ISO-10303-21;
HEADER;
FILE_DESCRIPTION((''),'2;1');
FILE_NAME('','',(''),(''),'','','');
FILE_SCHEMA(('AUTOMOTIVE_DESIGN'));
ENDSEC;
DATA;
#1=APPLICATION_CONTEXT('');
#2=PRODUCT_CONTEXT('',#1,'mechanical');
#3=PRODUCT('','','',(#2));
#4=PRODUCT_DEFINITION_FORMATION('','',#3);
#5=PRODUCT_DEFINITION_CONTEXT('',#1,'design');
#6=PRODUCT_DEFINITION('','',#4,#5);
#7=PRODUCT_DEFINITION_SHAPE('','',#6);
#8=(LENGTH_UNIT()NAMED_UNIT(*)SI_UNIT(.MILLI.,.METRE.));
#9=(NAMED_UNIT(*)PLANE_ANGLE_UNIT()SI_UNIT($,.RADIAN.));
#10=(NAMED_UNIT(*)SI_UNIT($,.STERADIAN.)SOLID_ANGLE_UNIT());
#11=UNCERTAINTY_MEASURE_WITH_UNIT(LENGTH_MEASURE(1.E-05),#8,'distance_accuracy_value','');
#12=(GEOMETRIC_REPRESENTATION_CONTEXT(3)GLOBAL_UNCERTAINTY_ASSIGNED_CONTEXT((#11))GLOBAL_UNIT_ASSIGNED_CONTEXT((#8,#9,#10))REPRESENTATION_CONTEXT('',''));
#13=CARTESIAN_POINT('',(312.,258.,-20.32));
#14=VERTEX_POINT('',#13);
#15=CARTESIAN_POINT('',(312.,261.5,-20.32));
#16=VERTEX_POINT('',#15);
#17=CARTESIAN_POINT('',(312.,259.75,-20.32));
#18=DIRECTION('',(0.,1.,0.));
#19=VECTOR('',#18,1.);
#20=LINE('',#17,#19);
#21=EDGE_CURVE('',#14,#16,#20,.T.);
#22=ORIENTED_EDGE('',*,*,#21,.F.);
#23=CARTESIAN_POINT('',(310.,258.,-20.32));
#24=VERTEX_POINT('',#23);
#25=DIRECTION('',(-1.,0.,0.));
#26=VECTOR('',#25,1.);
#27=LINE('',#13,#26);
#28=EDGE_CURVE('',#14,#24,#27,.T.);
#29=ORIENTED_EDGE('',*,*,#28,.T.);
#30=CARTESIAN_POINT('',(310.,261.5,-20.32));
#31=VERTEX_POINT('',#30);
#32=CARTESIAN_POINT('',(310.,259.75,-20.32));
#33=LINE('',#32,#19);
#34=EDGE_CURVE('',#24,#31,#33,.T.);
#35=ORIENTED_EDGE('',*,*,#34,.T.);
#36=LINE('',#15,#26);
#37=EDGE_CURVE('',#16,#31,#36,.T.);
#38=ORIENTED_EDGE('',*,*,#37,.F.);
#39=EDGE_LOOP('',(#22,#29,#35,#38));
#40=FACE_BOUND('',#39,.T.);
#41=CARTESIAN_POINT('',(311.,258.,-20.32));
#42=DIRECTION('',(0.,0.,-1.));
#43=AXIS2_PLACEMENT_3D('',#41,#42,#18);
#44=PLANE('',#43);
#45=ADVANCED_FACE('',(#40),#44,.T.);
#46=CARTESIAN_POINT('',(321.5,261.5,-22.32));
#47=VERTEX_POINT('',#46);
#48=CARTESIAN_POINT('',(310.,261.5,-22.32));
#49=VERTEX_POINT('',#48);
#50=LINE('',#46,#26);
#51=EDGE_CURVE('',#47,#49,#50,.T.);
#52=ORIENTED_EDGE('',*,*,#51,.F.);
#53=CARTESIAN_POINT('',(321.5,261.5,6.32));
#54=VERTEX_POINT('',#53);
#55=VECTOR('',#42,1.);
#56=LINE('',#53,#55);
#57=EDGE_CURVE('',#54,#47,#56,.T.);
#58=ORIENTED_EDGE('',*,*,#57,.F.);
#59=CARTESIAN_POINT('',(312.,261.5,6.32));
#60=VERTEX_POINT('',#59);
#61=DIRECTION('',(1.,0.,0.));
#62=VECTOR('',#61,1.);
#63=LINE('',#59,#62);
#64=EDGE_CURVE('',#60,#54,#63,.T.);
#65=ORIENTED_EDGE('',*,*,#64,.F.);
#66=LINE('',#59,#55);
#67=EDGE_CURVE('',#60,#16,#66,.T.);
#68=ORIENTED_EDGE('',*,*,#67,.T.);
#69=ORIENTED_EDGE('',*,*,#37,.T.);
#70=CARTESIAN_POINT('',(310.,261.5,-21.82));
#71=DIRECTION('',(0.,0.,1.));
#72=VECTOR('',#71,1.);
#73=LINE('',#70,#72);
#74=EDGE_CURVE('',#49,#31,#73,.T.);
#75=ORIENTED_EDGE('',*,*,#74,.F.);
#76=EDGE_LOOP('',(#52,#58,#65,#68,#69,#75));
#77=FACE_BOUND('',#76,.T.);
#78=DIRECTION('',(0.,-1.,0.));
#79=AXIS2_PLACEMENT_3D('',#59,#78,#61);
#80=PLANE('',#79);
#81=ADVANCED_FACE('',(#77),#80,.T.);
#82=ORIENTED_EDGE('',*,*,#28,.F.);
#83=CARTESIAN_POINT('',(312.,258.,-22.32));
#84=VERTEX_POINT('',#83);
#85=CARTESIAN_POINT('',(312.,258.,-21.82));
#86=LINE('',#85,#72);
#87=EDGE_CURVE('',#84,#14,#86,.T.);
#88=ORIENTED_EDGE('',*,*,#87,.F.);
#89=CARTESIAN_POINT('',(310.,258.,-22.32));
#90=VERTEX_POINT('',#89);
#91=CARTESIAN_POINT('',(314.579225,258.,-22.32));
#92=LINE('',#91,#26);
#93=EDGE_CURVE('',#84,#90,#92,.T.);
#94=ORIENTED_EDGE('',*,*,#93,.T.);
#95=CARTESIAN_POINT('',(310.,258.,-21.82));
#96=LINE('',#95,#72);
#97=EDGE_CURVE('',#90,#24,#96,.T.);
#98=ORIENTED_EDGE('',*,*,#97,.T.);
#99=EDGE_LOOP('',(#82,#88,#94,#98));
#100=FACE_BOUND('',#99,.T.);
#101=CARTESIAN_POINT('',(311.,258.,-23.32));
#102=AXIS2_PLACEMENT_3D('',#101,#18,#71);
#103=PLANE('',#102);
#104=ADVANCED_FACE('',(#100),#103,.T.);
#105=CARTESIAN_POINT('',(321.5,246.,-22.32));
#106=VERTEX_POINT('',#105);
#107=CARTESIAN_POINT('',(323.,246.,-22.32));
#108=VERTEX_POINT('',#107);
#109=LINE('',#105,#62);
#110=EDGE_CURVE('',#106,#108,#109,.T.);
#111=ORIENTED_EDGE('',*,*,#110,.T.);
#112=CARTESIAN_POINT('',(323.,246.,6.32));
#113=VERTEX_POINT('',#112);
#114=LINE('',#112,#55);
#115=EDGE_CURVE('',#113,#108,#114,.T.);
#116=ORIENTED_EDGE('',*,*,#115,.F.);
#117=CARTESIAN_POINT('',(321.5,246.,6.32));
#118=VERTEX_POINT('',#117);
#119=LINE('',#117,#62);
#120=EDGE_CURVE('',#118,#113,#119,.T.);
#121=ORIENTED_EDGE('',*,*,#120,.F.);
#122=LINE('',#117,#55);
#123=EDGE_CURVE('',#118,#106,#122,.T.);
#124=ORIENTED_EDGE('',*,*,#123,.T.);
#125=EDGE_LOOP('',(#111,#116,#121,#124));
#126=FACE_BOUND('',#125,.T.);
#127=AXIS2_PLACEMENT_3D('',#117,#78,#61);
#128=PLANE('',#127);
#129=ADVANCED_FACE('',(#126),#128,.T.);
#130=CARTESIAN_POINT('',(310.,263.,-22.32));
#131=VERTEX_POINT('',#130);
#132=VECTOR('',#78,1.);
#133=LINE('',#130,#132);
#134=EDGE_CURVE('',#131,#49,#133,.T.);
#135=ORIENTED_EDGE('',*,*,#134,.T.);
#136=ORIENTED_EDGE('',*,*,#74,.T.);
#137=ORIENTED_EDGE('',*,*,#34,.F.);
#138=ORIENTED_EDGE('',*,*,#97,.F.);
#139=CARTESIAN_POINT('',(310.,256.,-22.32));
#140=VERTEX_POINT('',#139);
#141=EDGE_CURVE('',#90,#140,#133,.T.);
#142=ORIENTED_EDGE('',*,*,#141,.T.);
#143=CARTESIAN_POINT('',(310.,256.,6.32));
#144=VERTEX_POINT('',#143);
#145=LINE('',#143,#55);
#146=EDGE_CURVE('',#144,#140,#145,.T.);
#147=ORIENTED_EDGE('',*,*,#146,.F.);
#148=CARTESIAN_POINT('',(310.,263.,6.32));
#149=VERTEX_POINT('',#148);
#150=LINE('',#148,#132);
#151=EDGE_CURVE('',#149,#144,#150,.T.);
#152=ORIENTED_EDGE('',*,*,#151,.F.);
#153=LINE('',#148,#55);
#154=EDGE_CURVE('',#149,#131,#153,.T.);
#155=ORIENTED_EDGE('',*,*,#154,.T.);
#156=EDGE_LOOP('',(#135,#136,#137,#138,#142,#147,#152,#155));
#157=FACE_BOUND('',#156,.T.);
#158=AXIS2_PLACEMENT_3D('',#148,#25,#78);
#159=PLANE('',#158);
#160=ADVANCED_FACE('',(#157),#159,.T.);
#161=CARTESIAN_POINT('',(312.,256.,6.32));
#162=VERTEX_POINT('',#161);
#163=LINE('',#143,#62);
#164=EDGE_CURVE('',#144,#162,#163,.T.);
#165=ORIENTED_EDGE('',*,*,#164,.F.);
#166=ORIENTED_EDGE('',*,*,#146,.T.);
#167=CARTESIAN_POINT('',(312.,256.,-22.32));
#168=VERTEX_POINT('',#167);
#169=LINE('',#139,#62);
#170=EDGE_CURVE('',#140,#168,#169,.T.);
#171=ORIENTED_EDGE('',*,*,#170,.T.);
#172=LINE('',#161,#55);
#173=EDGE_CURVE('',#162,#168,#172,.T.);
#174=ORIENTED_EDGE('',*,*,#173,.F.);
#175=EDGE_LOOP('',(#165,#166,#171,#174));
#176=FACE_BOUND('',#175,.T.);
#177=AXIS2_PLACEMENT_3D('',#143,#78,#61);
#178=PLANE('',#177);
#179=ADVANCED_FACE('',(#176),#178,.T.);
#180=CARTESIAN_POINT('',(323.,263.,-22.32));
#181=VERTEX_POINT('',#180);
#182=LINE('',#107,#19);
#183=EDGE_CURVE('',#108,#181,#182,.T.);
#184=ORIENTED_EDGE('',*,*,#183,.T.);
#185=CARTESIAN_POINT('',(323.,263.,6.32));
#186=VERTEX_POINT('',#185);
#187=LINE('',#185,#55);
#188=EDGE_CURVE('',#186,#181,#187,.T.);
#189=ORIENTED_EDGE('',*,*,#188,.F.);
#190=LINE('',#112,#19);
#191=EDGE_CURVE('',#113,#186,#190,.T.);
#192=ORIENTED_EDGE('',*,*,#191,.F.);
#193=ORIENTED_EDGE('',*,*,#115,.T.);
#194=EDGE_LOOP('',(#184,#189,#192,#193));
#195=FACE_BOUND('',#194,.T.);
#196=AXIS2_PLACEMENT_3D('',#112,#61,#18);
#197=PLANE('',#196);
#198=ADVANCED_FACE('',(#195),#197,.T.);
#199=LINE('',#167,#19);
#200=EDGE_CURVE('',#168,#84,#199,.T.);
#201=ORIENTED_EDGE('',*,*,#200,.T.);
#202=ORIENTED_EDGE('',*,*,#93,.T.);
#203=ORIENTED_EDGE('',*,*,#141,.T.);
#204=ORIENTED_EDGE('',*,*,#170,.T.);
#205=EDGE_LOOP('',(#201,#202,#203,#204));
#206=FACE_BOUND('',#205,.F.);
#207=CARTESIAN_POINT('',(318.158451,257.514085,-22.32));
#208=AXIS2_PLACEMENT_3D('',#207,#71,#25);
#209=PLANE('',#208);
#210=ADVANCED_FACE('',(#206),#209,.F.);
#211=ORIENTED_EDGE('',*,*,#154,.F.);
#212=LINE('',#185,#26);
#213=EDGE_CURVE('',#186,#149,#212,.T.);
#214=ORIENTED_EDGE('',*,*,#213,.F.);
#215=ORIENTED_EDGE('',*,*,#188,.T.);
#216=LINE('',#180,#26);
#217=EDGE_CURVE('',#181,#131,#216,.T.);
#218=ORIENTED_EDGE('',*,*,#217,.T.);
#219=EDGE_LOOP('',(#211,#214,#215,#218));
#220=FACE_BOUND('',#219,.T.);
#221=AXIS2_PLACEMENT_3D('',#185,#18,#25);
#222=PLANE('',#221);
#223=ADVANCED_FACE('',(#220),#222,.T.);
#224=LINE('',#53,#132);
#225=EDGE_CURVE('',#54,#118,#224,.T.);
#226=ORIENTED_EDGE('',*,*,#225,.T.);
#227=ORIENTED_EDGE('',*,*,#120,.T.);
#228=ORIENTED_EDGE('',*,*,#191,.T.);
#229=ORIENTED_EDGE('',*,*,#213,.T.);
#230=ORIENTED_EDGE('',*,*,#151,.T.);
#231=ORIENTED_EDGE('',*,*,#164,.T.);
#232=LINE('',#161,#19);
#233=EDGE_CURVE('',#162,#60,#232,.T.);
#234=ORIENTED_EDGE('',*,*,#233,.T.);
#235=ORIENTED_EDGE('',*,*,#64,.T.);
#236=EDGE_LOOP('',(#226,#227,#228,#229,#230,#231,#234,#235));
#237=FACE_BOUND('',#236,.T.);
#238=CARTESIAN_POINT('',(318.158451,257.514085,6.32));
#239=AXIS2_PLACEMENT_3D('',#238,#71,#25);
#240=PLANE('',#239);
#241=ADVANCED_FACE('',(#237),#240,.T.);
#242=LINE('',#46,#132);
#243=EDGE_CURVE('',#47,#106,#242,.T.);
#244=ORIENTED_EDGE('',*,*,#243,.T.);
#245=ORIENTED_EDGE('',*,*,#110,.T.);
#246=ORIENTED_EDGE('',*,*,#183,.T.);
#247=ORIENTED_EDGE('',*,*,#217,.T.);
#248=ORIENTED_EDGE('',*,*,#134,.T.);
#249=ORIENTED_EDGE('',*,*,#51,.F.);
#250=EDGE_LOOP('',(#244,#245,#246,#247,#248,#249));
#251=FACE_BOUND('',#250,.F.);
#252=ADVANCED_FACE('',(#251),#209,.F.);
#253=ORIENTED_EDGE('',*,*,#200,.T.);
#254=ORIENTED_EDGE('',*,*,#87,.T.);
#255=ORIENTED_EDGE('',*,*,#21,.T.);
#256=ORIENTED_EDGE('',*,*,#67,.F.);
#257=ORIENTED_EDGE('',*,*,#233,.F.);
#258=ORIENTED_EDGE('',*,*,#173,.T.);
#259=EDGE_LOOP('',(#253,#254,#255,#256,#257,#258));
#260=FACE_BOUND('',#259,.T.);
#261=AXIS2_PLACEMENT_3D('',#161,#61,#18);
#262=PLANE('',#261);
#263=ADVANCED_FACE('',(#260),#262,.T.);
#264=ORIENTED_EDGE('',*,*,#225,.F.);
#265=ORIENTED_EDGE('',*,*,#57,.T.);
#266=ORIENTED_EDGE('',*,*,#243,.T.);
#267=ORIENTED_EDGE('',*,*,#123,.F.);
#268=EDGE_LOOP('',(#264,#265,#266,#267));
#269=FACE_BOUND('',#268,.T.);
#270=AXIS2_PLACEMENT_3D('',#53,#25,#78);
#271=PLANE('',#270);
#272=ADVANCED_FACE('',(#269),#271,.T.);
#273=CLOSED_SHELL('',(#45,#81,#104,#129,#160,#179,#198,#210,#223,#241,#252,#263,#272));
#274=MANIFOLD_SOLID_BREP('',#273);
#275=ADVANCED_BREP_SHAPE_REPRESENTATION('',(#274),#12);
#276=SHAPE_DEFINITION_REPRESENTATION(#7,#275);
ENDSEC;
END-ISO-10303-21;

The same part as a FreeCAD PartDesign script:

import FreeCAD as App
import Part
import Sketcher
Q = App.Units.Quantity

doc = App.newDocument("Part")
body = doc.addObject("PartDesign::Body", "Body")

# Sketch on YZ plane
sketch1 = body.newObject("Sketcher::SketchObject", "Sketch")
sketch1.AttachmentSupport = (doc.getObject("YZ_Plane"), [""])
sketch1.MapMode = "FlatFace"
sketch1.AttachmentOffset = App.Placement(App.Vector(0, 0, 311), App.Rotation())
sketch1.addGeometry(Part.LineSegment(App.Vector(258, -20.32, 0), App.Vector(258, -23.32, 0)), False)
sketch1.addGeometry(Part.LineSegment(App.Vector(258, -23.32, 0), App.Vector(261.5, -23.32, 0)), False)
sketch1.addGeometry(Part.LineSegment(App.Vector(261.5, -23.32, 0), App.Vector(261.5, -20.32, 0)), False)
sketch1.addGeometry(Part.LineSegment(App.Vector(261.5, -20.32, 0), App.Vector(258, -20.32, 0)), False)
sketch1.addConstraint(Sketcher.Constraint("Coincident", 0, 2, 1, 1))
sketch1.addConstraint(Sketcher.Constraint("Coincident", 1, 2, 2, 1))
sketch1.addConstraint(Sketcher.Constraint("Coincident", 2, 2, 3, 1))
sketch1.addConstraint(Sketcher.Constraint("Coincident", 3, 2, 0, 1))
sketch1.addConstraint(Sketcher.Constraint("Vertical", 0))
sketch1.addConstraint(Sketcher.Constraint("Horizontal", 1))
sketch1.addConstraint(Sketcher.Constraint("Vertical", 2))
sketch1.addConstraint(Sketcher.Constraint("Horizontal", 3))
sketch1.addConstraint(Sketcher.Constraint("DistanceY", 0, 2, 0, 1, Q("3 mm")))
sketch1.addConstraint(Sketcher.Constraint("DistanceX", 1, 1, 1, 2, Q("3.5 mm")))
sketch1.addConstraint(Sketcher.Constraint("DistanceX", -1, 1, 0, 2, Q("258 mm")))
sketch1.addConstraint(Sketcher.Constraint("DistanceY", 0, 2, -1, 1, Q("23.32 mm")))
pad1 = body.newObject("PartDesign::Pad", "Pad")
pad1.Profile = sketch1
pad1.Length = 2
pad1.Midplane = True
body2 = doc.addObject("PartDesign::Body", "Body001")

# Sketch on XY plane
sketch2 = body2.newObject("Sketcher::SketchObject", "Sketch001")
sketch2.AttachmentSupport = (doc.getObject("XY_Plane001"), [""])
sketch2.MapMode = "FlatFace"
sketch2.AttachmentOffset = App.Placement(App.Vector(0, 0, 6.32), App.Rotation())
sketch2.addGeometry(Part.LineSegment(App.Vector(323, 246, 0), App.Vector(321.5, 246, 0)), False)
sketch2.addGeometry(Part.LineSegment(App.Vector(321.5, 246, 0), App.Vector(321.5, 261.5, 0)), False)
sketch2.addGeometry(Part.LineSegment(App.Vector(321.5, 261.5, 0), App.Vector(312, 261.5, 0)), False)
sketch2.addGeometry(Part.LineSegment(App.Vector(312, 261.5, 0), App.Vector(312, 256, 0)), False)
sketch2.addGeometry(Part.LineSegment(App.Vector(312, 256, 0), App.Vector(310, 256, 0)), False)
sketch2.addGeometry(Part.LineSegment(App.Vector(310, 256, 0), App.Vector(310, 263, 0)), False)
sketch2.addGeometry(Part.LineSegment(App.Vector(310, 263, 0), App.Vector(323, 263, 0)), False)
sketch2.addGeometry(Part.LineSegment(App.Vector(323, 263, 0), App.Vector(323, 246, 0)), False)
sketch2.addConstraint(Sketcher.Constraint("Coincident", 0, 2, 1, 1))
sketch2.addConstraint(Sketcher.Constraint("Coincident", 1, 2, 2, 1))
sketch2.addConstraint(Sketcher.Constraint("Coincident", 2, 2, 3, 1))
sketch2.addConstraint(Sketcher.Constraint("Coincident", 3, 2, 4, 1))
sketch2.addConstraint(Sketcher.Constraint("Coincident", 4, 2, 5, 1))
sketch2.addConstraint(Sketcher.Constraint("Coincident", 5, 2, 6, 1))
sketch2.addConstraint(Sketcher.Constraint("Coincident", 6, 2, 7, 1))
sketch2.addConstraint(Sketcher.Constraint("Coincident", 7, 2, 0, 1))
sketch2.addConstraint(Sketcher.Constraint("Horizontal", 0))
sketch2.addConstraint(Sketcher.Constraint("Vertical", 1))
sketch2.addConstraint(Sketcher.Constraint("Horizontal", 2))
sketch2.addConstraint(Sketcher.Constraint("Vertical", 3))
sketch2.addConstraint(Sketcher.Constraint("Horizontal", 4))
sketch2.addConstraint(Sketcher.Constraint("Vertical", 5))
sketch2.addConstraint(Sketcher.Constraint("Horizontal", 6))
sketch2.addConstraint(Sketcher.Constraint("Vertical", 7))
sketch2.addConstraint(Sketcher.Constraint("DistanceX", 4, 2, 4, 1, Q("2 mm")))
sketch2.addConstraint(Sketcher.Constraint("DistanceX", 6, 1, 6, 2, Q("13 mm")))
sketch2.addConstraint(Sketcher.Constraint("DistanceY", 5, 1, 5, 2, Q("7 mm")))
sketch2.addConstraint(Sketcher.Constraint("DistanceY", 7, 2, 7, 1, Q("17 mm")))
sketch2.addConstraint(Sketcher.Constraint("DistanceX", 0, 2, 0, 1, Q("1.5 mm")))
sketch2.addConstraint(Sketcher.Constraint("DistanceY", 1, 1, 1, 2, Q("15.5 mm")))
sketch2.addConstraint(Sketcher.Constraint("DistanceY", -1, 1, 0, 2, Q("246 mm")))
sketch2.addConstraint(Sketcher.Constraint("DistanceX", -1, 1, 2, 2, Q("312 mm")))
pad2 = body2.newObject("PartDesign::Pad", "Pad001")
pad2.Profile = sketch2
pad2.Length = 28.64
pad2.Reversed = True
doc.recompute()

boolean = body2.newObject("PartDesign::Boolean", "Boolean")
boolean.Type = "Cut"
boolean.addObjects([body])

doc.recompute()
